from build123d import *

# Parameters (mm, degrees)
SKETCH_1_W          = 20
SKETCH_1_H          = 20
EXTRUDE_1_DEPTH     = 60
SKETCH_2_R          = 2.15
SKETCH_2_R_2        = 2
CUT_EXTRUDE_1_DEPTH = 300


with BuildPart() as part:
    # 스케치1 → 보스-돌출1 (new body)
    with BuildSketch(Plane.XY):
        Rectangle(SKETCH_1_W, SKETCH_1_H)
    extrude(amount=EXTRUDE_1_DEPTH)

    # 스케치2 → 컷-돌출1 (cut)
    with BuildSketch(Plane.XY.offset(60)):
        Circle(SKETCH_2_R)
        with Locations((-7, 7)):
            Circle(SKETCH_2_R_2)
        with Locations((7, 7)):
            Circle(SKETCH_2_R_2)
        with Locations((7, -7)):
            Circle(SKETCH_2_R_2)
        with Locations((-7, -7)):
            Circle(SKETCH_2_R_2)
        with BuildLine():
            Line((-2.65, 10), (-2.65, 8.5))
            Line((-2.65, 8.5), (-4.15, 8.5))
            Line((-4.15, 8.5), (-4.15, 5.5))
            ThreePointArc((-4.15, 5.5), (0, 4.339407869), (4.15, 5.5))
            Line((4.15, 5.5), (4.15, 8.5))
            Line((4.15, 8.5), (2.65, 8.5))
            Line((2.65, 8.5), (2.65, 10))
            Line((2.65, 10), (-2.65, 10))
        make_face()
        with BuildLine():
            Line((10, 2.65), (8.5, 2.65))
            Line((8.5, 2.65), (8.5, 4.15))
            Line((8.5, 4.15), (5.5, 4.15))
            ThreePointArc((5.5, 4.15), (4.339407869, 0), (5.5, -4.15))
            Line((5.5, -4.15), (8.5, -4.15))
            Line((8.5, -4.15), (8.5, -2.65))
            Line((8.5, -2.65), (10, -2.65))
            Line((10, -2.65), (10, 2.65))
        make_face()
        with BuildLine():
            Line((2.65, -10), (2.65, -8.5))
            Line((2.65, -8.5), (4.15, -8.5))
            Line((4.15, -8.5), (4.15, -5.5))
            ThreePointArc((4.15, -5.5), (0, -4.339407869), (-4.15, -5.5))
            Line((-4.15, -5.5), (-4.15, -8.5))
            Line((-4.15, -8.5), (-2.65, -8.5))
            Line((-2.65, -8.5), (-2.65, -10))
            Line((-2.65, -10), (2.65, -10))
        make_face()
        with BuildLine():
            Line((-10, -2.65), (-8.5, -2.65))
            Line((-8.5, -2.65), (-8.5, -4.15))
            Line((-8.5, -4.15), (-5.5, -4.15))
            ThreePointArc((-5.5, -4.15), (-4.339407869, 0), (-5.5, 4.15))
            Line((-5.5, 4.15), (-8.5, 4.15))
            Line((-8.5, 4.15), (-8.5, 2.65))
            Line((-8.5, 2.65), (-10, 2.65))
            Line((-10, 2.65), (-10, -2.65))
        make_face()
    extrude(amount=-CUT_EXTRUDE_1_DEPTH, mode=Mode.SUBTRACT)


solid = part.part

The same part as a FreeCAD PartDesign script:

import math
import FreeCAD as App
import Part
import Sketcher

V = App.Vector
Q = App.Units.Quantity

doc = App.newDocument("Part")
body = doc.addObject("PartDesign::Body", "Body")

sketch1 = body.newObject("Sketcher::SketchObject", "Sketch")
sketch1.AttachmentSupport = (doc.getObject("XY_Plane"), [""])
sketch1.MapMode = "FlatFace"
sketch1.addGeometry([
    Part.LineSegment(V(-10, 10, 0), V(-10, -10, 0)),
    Part.LineSegment(V(-10, -10, 0), V(10, -10, 0)),
    Part.LineSegment(V(10, -10, 0), V(10, 10, 0)),
    Part.LineSegment(V(10, 10, 0), V(-10, 10, 0)),
], False)
sketch1.addConstraint([
    Sketcher.Constraint("Coincident", 0, 2, 1, 1),
    Sketcher.Constraint("Coincident", 1, 2, 2, 1),
    Sketcher.Constraint("Coincident", 2, 2, 3, 1),
    Sketcher.Constraint("Coincident", 3, 2, 0, 1),
    Sketcher.Constraint("Vertical", 0),
    Sketcher.Constraint("Horizontal", 1),
    Sketcher.Constraint("Vertical", 2),
    Sketcher.Constraint("Horizontal", 3),
    Sketcher.Constraint("Symmetric", 0, 2, 2, 2, -1, 1),
    Sketcher.Constraint("Equal", 3, 0),
    Sketcher.Constraint("DistanceX", 1, 1, 1, 2, Q("20 mm")),
])
pad1 = body.newObject("PartDesign::Pad", "Pad")
pad1.Profile = sketch1
pad1.Length = 60

sketch2 = body.newObject("Sketcher::SketchObject", "Sketch001")
sketch2.AttachmentSupport = (doc.getObject("XY_Plane"), [""])
sketch2.MapMode = "FlatFace"
sketch2.AttachmentOffset = App.Placement(V(0, 0, 60), App.Rotation())
sketch2.addGeometry([
    Part.Circle(V(0, 0, 0), V(0, 0, 1), 2.15),
    Part.Circle(V(-7, 7, 0), V(0, 0, 1), 2),
    Part.Circle(V(7, 7, 0), V(0, 0, 1), 2),
    Part.Circle(V(7, -7, 0), V(0, 0, 1), 2),
    Part.Circle(V(-7, -7, 0), V(0, 0, 1), 2),
    Part.LineSegment(V(-2.65, 10, 0), V(-2.65, 8.5, 0)),
    Part.LineSegment(V(-2.65, 8.5, 0), V(-4.15, 8.5, 0)),
    Part.LineSegment(V(-4.15, 8.5, 0), V(-4.15, 5.5, 0)),
    Part.ArcOfCircle(Part.Circle(V(0, 12.339408, 0), V(0, 0, 1), 8), math.radians(-121.248441), math.radians(-58.751559)),
    Part.LineSegment(V(4.15, 5.5, 0), V(4.15, 8.5, 0)),
    Part.LineSegment(V(4.15, 8.5, 0), V(2.65, 8.5, 0)),
    Part.LineSegment(V(2.65, 8.5, 0), V(2.65, 10, 0)),
    Part.LineSegment(V(2.65, 10, 0), V(-2.65, 10, 0)),
    Part.LineSegment(V(10, 2.65, 0), V(8.5, 2.65, 0)),
    Part.LineSegment(V(8.5, 2.65, 0), V(8.5, 4.15, 0)),
    Part.LineSegment(V(8.5, 4.15, 0), V(5.5, 4.15, 0)),
    Part.ArcOfCircle(Part.Circle(V(12.339408, 0, 0), V(0, 0, 1), 8), math.radians(148.751559), math.radians(211.248441)),
    Part.LineSegment(V(5.5, -4.15, 0), V(8.5, -4.15, 0)),
    Part.LineSegment(V(8.5, -4.15, 0), V(8.5, -2.65, 0)),
    Part.LineSegment(V(8.5, -2.65, 0), V(10, -2.65, 0)),
    Part.LineSegment(V(10, -2.65, 0), V(10, 2.65, 0)),
    Part.LineSegment(V(2.65, -10, 0), V(2.65, -8.5, 0)),
    Part.LineSegment(V(2.65, -8.5, 0), V(4.15, -8.5, 0)),
    Part.LineSegment(V(4.15, -8.5, 0), V(4.15, -5.5, 0)),
    Part.ArcOfCircle(Part.Circle(V(0, -12.339408, 0), V(0, 0, 1), 8), math.radians(58.751559), math.radians(121.248441)),
    Part.LineSegment(V(-4.15, -5.5, 0), V(-4.15, -8.5, 0)),
    Part.LineSegment(V(-4.15, -8.5, 0), V(-2.65, -8.5, 0)),
    Part.LineSegment(V(-2.65, -8.5, 0), V(-2.65, -10, 0)),
    Part.LineSegment(V(-2.65, -10, 0), V(2.65, -10, 0)),
    Part.LineSegment(V(-10, -2.65, 0), V(-8.5, -2.65, 0)),
    Part.LineSegment(V(-8.5, -2.65, 0), V(-8.5, -4.15, 0)),
    Part.LineSegment(V(-8.5, -4.15, 0), V(-5.5, -4.15, 0)),
    Part.ArcOfCircle(Part.Circle(V(-12.339408, 0, 0), V(0, 0, 1), 8), math.radians(-31.248441), math.radians(31.248441)),
    Part.LineSegment(V(-5.5, 4.15, 0), V(-8.5, 4.15, 0)),
    Part.LineSegment(V(-8.5, 4.15, 0), V(-8.5, 2.65, 0)),
    Part.LineSegment(V(-8.5, 2.65, 0), V(-10, 2.65, 0)),
    Part.LineSegment(V(-10, 2.65, 0), V(-10, -2.65, 0)),
], False)
sketch2.addConstraint([
    Sketcher.Constraint("Coincident", 5, 2, 6, 1),
    Sketcher.Constraint("Coincident", 6, 2, 7, 1),
    Sketcher.Constraint("Coincident", 7, 2, 8, 1),
    Sketcher.Constraint("Coincident", 8, 2, 9, 1),
    Sketcher.Constraint("Coincident", 9, 2, 10, 1),
    Sketcher.Constraint("Coincident", 10, 2, 11, 1),
    Sketcher.Constraint("Coincident", 11, 2, 12, 1),
    Sketcher.Constraint("Coincident", 12, 2, 5, 1),
    Sketcher.Constraint("Coincident", 13, 2, 14, 1),
    Sketcher.Constraint("Coincident", 14, 2, 15, 1),
    Sketcher.Constraint("Coincident", 15, 2, 16, 1),
    Sketcher.Constraint("Coincident", 16, 2, 17, 1),
    Sketcher.Constraint("Coincident", 17, 2, 18, 1),
    Sketcher.Constraint("Coincident", 18, 2, 19, 1),
    Sketcher.Constraint("Coincident", 19, 2, 20, 1),
    Sketcher.Constraint("Coincident", 20, 2, 13, 1),
    Sketcher.Constraint("Coincident", 21, 2, 22, 1),
    Sketcher.Constraint("Coincident", 22, 2, 23, 1),
    Sketcher.Constraint("Coincident", 23, 2, 24, 1),
    Sketcher.Constraint("Coincident", 24, 2, 25, 1),
    Sketcher.Constraint("Coincident", 25, 2, 26, 1),
    Sketcher.Constraint("Coincident", 26, 2, 27, 1),
    Sketcher.Constraint("Coincident", 27, 2, 28, 1),
    Sketcher.Constraint("Coincident", 28, 2, 21, 1),
    Sketcher.Constraint("Coincident", 29, 2, 30, 1),
    Sketcher.Constraint("Coincident", 30, 2, 31, 1),
    Sketcher.Constraint("Coincident", 31, 2, 32, 1),
    Sketcher.Constraint("Coincident", 32, 2, 33, 1),
    Sketcher.Constraint("Coincident", 33, 2, 34, 1),
    Sketcher.Constraint("Coincident", 34, 2, 35, 1),
    Sketcher.Constraint("Coincident", 35, 2, 36, 1),
    Sketcher.Constraint("Coincident", 36, 2, 29, 1),
    Sketcher.Constraint("Vertical", 5),
    Sketcher.Constraint("Horizontal", 6),
    Sketcher.Constraint("Vertical", 7),
    Sketcher.Constraint("Vertical", 9),
    Sketcher.Constraint("Horizontal", 10),
    Sketcher.Constraint("Vertical", 11),
    Sketcher.Constraint("Horizontal", 12),
    Sketcher.Constraint("Horizontal", 13),
    Sketcher.Constraint("Vertical", 14),
    Sketcher.Constraint("Horizontal", 15),
    Sketcher.Constraint("Horizontal", 17),
    Sketcher.Constraint("Vertical", 18),
    Sketcher.Constraint("Horizontal", 19),
    Sketcher.Constraint("Vertical", 20),
    Sketcher.Constraint("Vertical", 21),
    Sketcher.Constraint("Horizontal", 22),
    Sketcher.Constraint("Vertical", 23),
    Sketcher.Constraint("Vertical", 25),
    Sketcher.Constraint("Horizontal", 26),
    Sketcher.Constraint("Vertical", 27),
    Sketcher.Constraint("Horizontal", 28),
    Sketcher.Constraint("Horizontal", 29),
    Sketcher.Constraint("Vertical", 30),
    Sketcher.Constraint("Horizontal", 31),
    Sketcher.Constraint("Horizontal", 33),
    Sketcher.Constraint("Vertical", 34),
    Sketcher.Constraint("Horizontal", 35),
    Sketcher.Constraint("Vertical", 36),
    Sketcher.Constraint("Coincident", 0, 3, -1, 1),
    Sketcher.Constraint("Equal", 1, 2),
    Sketcher.Constraint("Equal", 2, 3),
    Sketcher.Constraint("Equal", 3, 4),
    Sketcher.Constraint("Equal", 8, 16),
    Sketcher.Constraint("Equal", 16, 24),
    Sketcher.Constraint("Equal", 24, 32),
    Sketcher.Constraint("Symmetric", 1, 3, 3, 3, -1, 1),
    Sketcher.Constraint("Symmetric", 2, 3, 4, 3, -1, 1),
    Sketcher.Constraint("Symmetric", 8, 3, 24, 3, -1, 1),
    Sketcher.Constraint("Symmetric", 16, 3, 32, 3, -1, 1),
    Sketcher.Constraint("Symmetric", 5, 2, 21, 2, -1, 1),
    Sketcher.Constraint("Symmetric", 9, 2, 25, 2, -1, 1),
    Sketcher.Constraint("Symmetric", 11, 2, 27, 2, -1, 1),
    Sketcher.Constraint("Symmetric", 13, 2, 29, 2, -1, 1),
    Sketcher.Constraint("Symmetric", 17, 2, 33, 2, -1, 1),
    Sketcher.Constraint("Symmetric", 19, 2, 35, 2, -1, 1),
    Sketcher.Constraint("Symmetric", 1, 3, 2, 3, -2),
    Sketcher.Constraint("Symmetric", 7, 2, 8, 2, -2),
    Sketcher.Constraint("Symmetric", 5, 2, 10, 2, -2),
    Sketcher.Constraint("Symmetric", 18, 2, 29, 2, -2),
    Sketcher.Constraint("Symmetric", 16, 2, 31, 2, -2),
    Sketcher.Constraint("Horizontal", 23, 2, 24, 2),
    Sketcher.Constraint("Horizontal", 15, 2, 32, 2),
    Sketcher.Constraint("Equal", 10, 13),
    Sketcher.Constraint("Equal", 35, 5),
    Sketcher.Constraint("Equal", 33, 7),
    Sketcher.Constraint("Equal", 11, 14),
    Sketcher.Constraint("Equal", 28, 20),
    Sketcher.Constraint("Diameter", 1, Q("4 mm")),
    Sketcher.Constraint("Radius", 8, Q("8 mm")),
    Sketcher.Constraint("Diameter", 0, Q("4.3 mm")),
    Sketcher.Constraint("DistanceX", 15, 2, 15, 1, Q("3 mm")),
    Sketcher.Constraint("DistanceX", 6, 2, 6, 1, Q("1.5 mm")),
    Sketcher.Constraint("DistanceX", 12, 2, 12, 1, Q("5.3 mm")),
    Sketcher.Constraint("DistanceX", 1, 3, -1, 1, Q("7 mm")),
    Sketcher.Constraint("DistanceY", -1, 1, 1, 3, Q("7 mm")),
    Sketcher.Constraint("DistanceY", -1, 1, 11, 2, Q("10 mm")),
    Sketcher.Constraint("DistanceX", -1, 1, 19, 2, Q("10 mm")),
])
pocket1 = body.newObject("PartDesign::Pocket", "Pocket")
pocket1.Profile = sketch2
pocket1.Length = 300

doc.recompute()
